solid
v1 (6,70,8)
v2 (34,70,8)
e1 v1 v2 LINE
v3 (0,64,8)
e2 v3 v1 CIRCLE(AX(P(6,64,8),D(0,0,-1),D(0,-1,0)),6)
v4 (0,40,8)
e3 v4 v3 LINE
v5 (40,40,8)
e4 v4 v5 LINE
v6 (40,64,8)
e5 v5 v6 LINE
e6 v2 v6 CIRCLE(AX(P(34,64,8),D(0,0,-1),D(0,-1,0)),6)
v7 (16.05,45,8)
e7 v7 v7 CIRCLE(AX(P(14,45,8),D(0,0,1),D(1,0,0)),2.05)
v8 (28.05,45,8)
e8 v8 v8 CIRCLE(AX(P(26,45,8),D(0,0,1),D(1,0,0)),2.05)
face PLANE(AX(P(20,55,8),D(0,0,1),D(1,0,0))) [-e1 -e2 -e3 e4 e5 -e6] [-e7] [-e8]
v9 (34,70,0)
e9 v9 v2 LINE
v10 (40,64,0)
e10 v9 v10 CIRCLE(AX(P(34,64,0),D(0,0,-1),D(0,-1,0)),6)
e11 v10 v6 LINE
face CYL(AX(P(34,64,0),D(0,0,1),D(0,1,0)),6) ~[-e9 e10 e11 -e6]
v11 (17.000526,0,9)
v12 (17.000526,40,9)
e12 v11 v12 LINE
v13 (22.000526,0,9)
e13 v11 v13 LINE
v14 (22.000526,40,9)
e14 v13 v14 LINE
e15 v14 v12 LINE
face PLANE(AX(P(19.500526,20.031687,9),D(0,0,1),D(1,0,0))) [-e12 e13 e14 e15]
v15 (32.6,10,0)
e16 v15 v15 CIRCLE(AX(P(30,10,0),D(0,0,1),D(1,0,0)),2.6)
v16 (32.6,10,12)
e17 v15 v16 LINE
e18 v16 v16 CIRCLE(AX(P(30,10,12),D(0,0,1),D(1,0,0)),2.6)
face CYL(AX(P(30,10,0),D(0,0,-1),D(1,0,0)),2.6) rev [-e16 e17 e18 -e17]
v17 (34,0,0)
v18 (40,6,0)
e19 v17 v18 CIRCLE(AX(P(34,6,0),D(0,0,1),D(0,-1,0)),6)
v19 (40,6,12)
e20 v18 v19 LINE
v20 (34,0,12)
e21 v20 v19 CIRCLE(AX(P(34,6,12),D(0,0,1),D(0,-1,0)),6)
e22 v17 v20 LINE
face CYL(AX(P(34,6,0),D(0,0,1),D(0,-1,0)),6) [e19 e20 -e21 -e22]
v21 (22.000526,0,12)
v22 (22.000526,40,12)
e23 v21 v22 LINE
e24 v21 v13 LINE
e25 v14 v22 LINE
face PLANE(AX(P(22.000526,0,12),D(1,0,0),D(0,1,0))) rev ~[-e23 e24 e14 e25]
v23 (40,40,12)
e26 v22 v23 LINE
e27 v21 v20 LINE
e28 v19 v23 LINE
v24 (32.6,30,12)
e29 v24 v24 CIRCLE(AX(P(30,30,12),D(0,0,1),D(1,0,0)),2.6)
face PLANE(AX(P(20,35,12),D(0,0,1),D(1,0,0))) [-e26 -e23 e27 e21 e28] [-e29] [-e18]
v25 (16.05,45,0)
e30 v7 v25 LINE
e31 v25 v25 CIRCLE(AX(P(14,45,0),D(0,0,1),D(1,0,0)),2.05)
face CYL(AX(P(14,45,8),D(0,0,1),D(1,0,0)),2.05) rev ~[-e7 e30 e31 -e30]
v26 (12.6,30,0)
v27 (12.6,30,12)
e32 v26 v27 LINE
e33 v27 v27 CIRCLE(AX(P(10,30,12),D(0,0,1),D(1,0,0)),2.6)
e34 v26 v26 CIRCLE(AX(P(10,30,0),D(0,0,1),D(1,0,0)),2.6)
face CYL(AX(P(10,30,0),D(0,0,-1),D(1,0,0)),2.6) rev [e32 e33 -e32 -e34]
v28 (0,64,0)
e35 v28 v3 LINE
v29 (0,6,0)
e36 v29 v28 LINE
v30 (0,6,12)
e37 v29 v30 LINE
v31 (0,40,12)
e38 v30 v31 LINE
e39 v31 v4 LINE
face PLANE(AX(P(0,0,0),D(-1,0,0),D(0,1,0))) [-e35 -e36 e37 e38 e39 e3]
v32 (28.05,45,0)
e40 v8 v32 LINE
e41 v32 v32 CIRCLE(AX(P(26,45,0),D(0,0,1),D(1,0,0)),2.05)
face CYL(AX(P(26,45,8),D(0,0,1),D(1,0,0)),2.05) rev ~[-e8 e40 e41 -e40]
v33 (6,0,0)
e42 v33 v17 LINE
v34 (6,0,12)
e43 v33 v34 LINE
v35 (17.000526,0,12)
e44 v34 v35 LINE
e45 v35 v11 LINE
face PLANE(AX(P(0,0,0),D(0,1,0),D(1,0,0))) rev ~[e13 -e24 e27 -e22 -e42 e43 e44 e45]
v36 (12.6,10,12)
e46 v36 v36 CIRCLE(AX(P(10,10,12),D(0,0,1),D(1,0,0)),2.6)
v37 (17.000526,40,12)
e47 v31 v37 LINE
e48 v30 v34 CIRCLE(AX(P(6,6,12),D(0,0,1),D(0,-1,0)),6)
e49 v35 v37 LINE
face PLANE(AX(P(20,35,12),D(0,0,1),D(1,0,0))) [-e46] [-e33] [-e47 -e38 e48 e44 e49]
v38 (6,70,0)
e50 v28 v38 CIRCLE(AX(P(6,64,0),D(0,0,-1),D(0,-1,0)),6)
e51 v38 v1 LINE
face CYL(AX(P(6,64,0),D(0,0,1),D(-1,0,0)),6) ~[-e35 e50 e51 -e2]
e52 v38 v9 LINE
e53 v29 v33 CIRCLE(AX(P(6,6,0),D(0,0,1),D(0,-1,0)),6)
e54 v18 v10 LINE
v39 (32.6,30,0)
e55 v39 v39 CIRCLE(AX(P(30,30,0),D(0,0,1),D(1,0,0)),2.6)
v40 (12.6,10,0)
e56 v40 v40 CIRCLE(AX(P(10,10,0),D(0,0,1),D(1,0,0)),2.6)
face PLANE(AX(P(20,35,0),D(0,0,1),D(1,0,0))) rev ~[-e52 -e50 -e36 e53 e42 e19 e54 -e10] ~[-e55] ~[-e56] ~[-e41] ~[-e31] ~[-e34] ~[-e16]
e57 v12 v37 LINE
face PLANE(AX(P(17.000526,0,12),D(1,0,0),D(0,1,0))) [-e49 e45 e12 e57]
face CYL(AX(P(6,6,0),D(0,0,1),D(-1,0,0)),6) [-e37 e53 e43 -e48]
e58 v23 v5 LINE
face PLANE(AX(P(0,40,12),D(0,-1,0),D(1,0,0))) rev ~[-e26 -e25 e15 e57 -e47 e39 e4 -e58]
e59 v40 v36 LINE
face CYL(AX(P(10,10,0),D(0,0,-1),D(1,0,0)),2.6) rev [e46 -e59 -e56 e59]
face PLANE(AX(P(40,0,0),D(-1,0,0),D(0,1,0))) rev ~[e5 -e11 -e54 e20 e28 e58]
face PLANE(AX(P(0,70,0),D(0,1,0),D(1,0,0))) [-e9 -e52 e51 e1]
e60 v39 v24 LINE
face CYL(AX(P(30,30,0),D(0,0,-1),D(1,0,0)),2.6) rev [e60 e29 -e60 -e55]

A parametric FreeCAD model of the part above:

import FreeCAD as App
import Part
import Sketcher
from FreeCAD import Vector
Q = App.Units.Quantity


def edges_at(feature, points):
    """Names of the edges that pass closest to the given points."""
    edges = feature.Shape.Edges
    near = lambda p: min(range(len(edges)), key=lambda i: edges[i].distToShape(Part.Vertex(*p))[0])
    return sorted({f"Edge{near(p) + 1}" for p in points})

doc = App.newDocument("Part")
body = doc.addObject("PartDesign::Body", "Body")

# Sketch on XY plane
sketch1 = body.newObject("Sketcher::SketchObject", "Sketch")
sketch1.AttachmentSupport = (doc.getObject("XY_Plane"), [""])
sketch1.MapMode = "FlatFace"
sketch1.addGeometry([
    Part.LineSegment(Vector(0, 70, 0), Vector(0, 0, 0)),  # 0
    Part.LineSegment(Vector(0, 0, 0), Vector(40, 0, 0)),  # 1
    Part.LineSegment(Vector(40, 0, 0), Vector(40, 70, 0)),  # 2
    Part.LineSegment(Vector(40, 70, 0), Vector(0, 70, 0)),  # 3
    Part.Circle(Vector(10, 10, 0), Vector(0, 0, 1), 2.6),  # 4
    Part.Circle(Vector(30, 10, 0), Vector(0, 0, 1), 2.6),  # 5
    Part.Circle(Vector(10, 30, 0), Vector(0, 0, 1), 2.6),  # 6
    Part.Circle(Vector(30, 30, 0), Vector(0, 0, 1), 2.6),  # 7
], False)
sketch1.addConstraint([
    Sketcher.Constraint("Coincident", 0, 2, 1, 1),
    Sketcher.Constraint("Coincident", 1, 2, 2, 1),
    Sketcher.Constraint("Coincident", 2, 2, 3, 1),
    Sketcher.Constraint("Coincident", 3, 2, 0, 1),
    Sketcher.Constraint("Vertical", 0),
    Sketcher.Constraint("Horizontal", 1),
    Sketcher.Constraint("Vertical", 2),
    Sketcher.Constraint("Horizontal", 3),
    Sketcher.Constraint("Coincident", 0, 2, -1, 1),
    Sketcher.Constraint("Equal", 4, 5),
    Sketcher.Constraint("Equal", 5, 6),
    Sketcher.Constraint("Equal", 6, 7),
    Sketcher.Constraint("Horizontal", 4, 3, 5, 3),
    Sketcher.Constraint("Horizontal", 6, 3, 7, 3),
    Sketcher.Constraint("Vertical", 4, 3, 6, 3),
    Sketcher.Constraint("Vertical", 5, 3, 7, 3),
    Sketcher.Constraint("Diameter", 4, Q("5.2 mm")),
    Sketcher.Constraint("DistanceX", 1, 1, 1, 2, Q("40 mm")),
    Sketcher.Constraint("DistanceY", 0, 2, 0, 1, Q("70 mm")),
    Sketcher.Constraint("DistanceX", -1, 1, 4, 3, Q("10 mm")),
    Sketcher.Constraint("DistanceY", -1, 1, 4, 3, Q("10 mm")),
    Sketcher.Constraint("DistanceX", -1, 1, 5, 3, Q("30 mm")),
    Sketcher.Constraint("DistanceY", -1, 1, 6, 3, Q("30 mm")),
])
pad1 = body.newObject("PartDesign::Pad", "Pad")
pad1.Profile = sketch1
pad1.Length = 12

# Sketch on XY plane
sketch2 = body.newObject("Sketcher::SketchObject", "Sketch001")
sketch2.AttachmentSupport = (doc.getObject("XY_Plane"), [""])
sketch2.MapMode = "FlatFace"
sketch2.AttachmentOffset = App.Placement(Vector(0, 0, 12), App.Rotation())
sketch2.addGeometry([
    Part.LineSegment(Vector(0, 70, 0), Vector(0, 40, 0)),
    Part.LineSegment(Vector(0, 40, 0), Vector(40, 40, 0)),
    Part.LineSegment(Vector(40, 40, 0), Vector(40, 70, 0)),
    Part.LineSegment(Vector(40, 70, 0), Vector(0, 70, 0)),
], False)
sketch2.addConstraint([
    Sketcher.Constraint("Coincident", 0, 2, 1, 1),
    Sketcher.Constraint("Coincident", 1, 2, 2, 1),
    Sketcher.Constraint("Coincident", 2, 2, 3, 1),
    Sketcher.Constraint("Coincident", 3, 2, 0, 1),
    Sketcher.Constraint("Vertical", 0),
    Sketcher.Constraint("Horizontal", 1),
    Sketcher.Constraint("Vertical", 2),
    Sketcher.Constraint("Horizontal", 3),
    Sketcher.Constraint("PointOnObject", 0, 2, -2),
    Sketcher.Constraint("DistanceX", 1, 1, 1, 2, Q("40 mm")),
    Sketcher.Constraint("DistanceY", 0, 2, 0, 1, Q("30 mm")),
    Sketcher.Constraint("DistanceY", -1, 1, 0, 2, Q("40 mm")),
])
pocket1 = body.newObject("PartDesign::Pocket", "Pocket")
pocket1.Profile = sketch2
pocket1.Length = 4

# Sketch on XY plane
sketch3 = body.newObject("Sketcher::SketchObject", "Sketch002")
sketch3.AttachmentSupport = (doc.getObject("XY_Plane"), [""])
sketch3.MapMode = "FlatFace"
sketch3.AttachmentOffset = App.Placement(Vector(0, 0, 8), App.Rotation())
sketch3.addGeometry([
    Part.Circle(Vector(14, 45, 0), Vector(0, 0, 1), 2),
    Part.Circle(Vector(26, 45, 0), Vector(0, 0, 1), 2),
], False)
sketch3.addConstraint([
    Sketcher.Constraint("Equal", 0, 1),
    Sketcher.Constraint("Horizontal", 0, 3, 1, 3),
    Sketcher.Constraint("Diameter", 0, Q("4.1 mm")),
    Sketcher.Constraint("DistanceX", -1, 1, 0, 3, Q("14 mm")),
    Sketcher.Constraint("DistanceY", -1, 1, 0, 3, Q("45 mm")),
    Sketcher.Constraint("DistanceX", -1, 1, 1, 3, Q("26 mm")),
])
pocket2 = body.newObject("PartDesign::Pocket", "Pocket001")
pocket2.Profile = sketch3
pocket2.Length = 10

# Sketch on XY plane
sketch4 = body.newObject("Sketcher::SketchObject", "Sketch003")
sketch4.AttachmentSupport = (doc.getObject("XY_Plane"), [""])
sketch4.MapMode = "FlatFace"
sketch4.AttachmentOffset = App.Placement(Vector(0, 0, 12), App.Rotation())
sketch4.addGeometry([
    Part.LineSegment(Vector(17, 40, 0), Vector(17, 0, 0)),
    Part.LineSegment(Vector(17, 0, 0), Vector(22, 0, 0)),
    Part.LineSegment(Vector(22, 0, 0), Vector(22, 40, 0)),
    Part.LineSegment(Vector(22, 40, 0), Vector(17, 40, 0)),
], False)
sketch4.addConstraint([
    Sketcher.Constraint("Coincident", 0, 2, 1, 1),
    Sketcher.Constraint("Coincident", 1, 2, 2, 1),
    Sketcher.Constraint("Coincident", 2, 2, 3, 1),
    Sketcher.Constraint("Coincident", 3, 2, 0, 1),
    Sketcher.Constraint("Vertical", 0),
    Sketcher.Constraint("Horizontal", 1),
    Sketcher.Constraint("Vertical", 2),
    Sketcher.Constraint("Horizontal", 3),
    Sketcher.Constraint("PointOnObject", 0, 2, -1),
    Sketcher.Constraint("DistanceX", 1, 1, 1, 2, Q("5 mm")),
    Sketcher.Constraint("DistanceY", 0, 2, 0, 1, Q("40.063374 mm")),
    Sketcher.Constraint("DistanceX", -1, 1, 0, 2, Q("17.000526 mm")),
])
pocket3 = body.newObject("PartDesign::Pocket", "Pocket002")
pocket3.Profile = sketch4
pocket3.Length = 3
doc.recompute()

fillet = body.newObject("PartDesign::Fillet", "Fillet")
fillet.Base = (pocket3, edges_at(pocket3, [
    (40, 0, 6),
    (40, 70, 4),
    (0, 70, 4),
    (0, 0, 6),
]))
fillet.Radius = 6

doc.recompute()
